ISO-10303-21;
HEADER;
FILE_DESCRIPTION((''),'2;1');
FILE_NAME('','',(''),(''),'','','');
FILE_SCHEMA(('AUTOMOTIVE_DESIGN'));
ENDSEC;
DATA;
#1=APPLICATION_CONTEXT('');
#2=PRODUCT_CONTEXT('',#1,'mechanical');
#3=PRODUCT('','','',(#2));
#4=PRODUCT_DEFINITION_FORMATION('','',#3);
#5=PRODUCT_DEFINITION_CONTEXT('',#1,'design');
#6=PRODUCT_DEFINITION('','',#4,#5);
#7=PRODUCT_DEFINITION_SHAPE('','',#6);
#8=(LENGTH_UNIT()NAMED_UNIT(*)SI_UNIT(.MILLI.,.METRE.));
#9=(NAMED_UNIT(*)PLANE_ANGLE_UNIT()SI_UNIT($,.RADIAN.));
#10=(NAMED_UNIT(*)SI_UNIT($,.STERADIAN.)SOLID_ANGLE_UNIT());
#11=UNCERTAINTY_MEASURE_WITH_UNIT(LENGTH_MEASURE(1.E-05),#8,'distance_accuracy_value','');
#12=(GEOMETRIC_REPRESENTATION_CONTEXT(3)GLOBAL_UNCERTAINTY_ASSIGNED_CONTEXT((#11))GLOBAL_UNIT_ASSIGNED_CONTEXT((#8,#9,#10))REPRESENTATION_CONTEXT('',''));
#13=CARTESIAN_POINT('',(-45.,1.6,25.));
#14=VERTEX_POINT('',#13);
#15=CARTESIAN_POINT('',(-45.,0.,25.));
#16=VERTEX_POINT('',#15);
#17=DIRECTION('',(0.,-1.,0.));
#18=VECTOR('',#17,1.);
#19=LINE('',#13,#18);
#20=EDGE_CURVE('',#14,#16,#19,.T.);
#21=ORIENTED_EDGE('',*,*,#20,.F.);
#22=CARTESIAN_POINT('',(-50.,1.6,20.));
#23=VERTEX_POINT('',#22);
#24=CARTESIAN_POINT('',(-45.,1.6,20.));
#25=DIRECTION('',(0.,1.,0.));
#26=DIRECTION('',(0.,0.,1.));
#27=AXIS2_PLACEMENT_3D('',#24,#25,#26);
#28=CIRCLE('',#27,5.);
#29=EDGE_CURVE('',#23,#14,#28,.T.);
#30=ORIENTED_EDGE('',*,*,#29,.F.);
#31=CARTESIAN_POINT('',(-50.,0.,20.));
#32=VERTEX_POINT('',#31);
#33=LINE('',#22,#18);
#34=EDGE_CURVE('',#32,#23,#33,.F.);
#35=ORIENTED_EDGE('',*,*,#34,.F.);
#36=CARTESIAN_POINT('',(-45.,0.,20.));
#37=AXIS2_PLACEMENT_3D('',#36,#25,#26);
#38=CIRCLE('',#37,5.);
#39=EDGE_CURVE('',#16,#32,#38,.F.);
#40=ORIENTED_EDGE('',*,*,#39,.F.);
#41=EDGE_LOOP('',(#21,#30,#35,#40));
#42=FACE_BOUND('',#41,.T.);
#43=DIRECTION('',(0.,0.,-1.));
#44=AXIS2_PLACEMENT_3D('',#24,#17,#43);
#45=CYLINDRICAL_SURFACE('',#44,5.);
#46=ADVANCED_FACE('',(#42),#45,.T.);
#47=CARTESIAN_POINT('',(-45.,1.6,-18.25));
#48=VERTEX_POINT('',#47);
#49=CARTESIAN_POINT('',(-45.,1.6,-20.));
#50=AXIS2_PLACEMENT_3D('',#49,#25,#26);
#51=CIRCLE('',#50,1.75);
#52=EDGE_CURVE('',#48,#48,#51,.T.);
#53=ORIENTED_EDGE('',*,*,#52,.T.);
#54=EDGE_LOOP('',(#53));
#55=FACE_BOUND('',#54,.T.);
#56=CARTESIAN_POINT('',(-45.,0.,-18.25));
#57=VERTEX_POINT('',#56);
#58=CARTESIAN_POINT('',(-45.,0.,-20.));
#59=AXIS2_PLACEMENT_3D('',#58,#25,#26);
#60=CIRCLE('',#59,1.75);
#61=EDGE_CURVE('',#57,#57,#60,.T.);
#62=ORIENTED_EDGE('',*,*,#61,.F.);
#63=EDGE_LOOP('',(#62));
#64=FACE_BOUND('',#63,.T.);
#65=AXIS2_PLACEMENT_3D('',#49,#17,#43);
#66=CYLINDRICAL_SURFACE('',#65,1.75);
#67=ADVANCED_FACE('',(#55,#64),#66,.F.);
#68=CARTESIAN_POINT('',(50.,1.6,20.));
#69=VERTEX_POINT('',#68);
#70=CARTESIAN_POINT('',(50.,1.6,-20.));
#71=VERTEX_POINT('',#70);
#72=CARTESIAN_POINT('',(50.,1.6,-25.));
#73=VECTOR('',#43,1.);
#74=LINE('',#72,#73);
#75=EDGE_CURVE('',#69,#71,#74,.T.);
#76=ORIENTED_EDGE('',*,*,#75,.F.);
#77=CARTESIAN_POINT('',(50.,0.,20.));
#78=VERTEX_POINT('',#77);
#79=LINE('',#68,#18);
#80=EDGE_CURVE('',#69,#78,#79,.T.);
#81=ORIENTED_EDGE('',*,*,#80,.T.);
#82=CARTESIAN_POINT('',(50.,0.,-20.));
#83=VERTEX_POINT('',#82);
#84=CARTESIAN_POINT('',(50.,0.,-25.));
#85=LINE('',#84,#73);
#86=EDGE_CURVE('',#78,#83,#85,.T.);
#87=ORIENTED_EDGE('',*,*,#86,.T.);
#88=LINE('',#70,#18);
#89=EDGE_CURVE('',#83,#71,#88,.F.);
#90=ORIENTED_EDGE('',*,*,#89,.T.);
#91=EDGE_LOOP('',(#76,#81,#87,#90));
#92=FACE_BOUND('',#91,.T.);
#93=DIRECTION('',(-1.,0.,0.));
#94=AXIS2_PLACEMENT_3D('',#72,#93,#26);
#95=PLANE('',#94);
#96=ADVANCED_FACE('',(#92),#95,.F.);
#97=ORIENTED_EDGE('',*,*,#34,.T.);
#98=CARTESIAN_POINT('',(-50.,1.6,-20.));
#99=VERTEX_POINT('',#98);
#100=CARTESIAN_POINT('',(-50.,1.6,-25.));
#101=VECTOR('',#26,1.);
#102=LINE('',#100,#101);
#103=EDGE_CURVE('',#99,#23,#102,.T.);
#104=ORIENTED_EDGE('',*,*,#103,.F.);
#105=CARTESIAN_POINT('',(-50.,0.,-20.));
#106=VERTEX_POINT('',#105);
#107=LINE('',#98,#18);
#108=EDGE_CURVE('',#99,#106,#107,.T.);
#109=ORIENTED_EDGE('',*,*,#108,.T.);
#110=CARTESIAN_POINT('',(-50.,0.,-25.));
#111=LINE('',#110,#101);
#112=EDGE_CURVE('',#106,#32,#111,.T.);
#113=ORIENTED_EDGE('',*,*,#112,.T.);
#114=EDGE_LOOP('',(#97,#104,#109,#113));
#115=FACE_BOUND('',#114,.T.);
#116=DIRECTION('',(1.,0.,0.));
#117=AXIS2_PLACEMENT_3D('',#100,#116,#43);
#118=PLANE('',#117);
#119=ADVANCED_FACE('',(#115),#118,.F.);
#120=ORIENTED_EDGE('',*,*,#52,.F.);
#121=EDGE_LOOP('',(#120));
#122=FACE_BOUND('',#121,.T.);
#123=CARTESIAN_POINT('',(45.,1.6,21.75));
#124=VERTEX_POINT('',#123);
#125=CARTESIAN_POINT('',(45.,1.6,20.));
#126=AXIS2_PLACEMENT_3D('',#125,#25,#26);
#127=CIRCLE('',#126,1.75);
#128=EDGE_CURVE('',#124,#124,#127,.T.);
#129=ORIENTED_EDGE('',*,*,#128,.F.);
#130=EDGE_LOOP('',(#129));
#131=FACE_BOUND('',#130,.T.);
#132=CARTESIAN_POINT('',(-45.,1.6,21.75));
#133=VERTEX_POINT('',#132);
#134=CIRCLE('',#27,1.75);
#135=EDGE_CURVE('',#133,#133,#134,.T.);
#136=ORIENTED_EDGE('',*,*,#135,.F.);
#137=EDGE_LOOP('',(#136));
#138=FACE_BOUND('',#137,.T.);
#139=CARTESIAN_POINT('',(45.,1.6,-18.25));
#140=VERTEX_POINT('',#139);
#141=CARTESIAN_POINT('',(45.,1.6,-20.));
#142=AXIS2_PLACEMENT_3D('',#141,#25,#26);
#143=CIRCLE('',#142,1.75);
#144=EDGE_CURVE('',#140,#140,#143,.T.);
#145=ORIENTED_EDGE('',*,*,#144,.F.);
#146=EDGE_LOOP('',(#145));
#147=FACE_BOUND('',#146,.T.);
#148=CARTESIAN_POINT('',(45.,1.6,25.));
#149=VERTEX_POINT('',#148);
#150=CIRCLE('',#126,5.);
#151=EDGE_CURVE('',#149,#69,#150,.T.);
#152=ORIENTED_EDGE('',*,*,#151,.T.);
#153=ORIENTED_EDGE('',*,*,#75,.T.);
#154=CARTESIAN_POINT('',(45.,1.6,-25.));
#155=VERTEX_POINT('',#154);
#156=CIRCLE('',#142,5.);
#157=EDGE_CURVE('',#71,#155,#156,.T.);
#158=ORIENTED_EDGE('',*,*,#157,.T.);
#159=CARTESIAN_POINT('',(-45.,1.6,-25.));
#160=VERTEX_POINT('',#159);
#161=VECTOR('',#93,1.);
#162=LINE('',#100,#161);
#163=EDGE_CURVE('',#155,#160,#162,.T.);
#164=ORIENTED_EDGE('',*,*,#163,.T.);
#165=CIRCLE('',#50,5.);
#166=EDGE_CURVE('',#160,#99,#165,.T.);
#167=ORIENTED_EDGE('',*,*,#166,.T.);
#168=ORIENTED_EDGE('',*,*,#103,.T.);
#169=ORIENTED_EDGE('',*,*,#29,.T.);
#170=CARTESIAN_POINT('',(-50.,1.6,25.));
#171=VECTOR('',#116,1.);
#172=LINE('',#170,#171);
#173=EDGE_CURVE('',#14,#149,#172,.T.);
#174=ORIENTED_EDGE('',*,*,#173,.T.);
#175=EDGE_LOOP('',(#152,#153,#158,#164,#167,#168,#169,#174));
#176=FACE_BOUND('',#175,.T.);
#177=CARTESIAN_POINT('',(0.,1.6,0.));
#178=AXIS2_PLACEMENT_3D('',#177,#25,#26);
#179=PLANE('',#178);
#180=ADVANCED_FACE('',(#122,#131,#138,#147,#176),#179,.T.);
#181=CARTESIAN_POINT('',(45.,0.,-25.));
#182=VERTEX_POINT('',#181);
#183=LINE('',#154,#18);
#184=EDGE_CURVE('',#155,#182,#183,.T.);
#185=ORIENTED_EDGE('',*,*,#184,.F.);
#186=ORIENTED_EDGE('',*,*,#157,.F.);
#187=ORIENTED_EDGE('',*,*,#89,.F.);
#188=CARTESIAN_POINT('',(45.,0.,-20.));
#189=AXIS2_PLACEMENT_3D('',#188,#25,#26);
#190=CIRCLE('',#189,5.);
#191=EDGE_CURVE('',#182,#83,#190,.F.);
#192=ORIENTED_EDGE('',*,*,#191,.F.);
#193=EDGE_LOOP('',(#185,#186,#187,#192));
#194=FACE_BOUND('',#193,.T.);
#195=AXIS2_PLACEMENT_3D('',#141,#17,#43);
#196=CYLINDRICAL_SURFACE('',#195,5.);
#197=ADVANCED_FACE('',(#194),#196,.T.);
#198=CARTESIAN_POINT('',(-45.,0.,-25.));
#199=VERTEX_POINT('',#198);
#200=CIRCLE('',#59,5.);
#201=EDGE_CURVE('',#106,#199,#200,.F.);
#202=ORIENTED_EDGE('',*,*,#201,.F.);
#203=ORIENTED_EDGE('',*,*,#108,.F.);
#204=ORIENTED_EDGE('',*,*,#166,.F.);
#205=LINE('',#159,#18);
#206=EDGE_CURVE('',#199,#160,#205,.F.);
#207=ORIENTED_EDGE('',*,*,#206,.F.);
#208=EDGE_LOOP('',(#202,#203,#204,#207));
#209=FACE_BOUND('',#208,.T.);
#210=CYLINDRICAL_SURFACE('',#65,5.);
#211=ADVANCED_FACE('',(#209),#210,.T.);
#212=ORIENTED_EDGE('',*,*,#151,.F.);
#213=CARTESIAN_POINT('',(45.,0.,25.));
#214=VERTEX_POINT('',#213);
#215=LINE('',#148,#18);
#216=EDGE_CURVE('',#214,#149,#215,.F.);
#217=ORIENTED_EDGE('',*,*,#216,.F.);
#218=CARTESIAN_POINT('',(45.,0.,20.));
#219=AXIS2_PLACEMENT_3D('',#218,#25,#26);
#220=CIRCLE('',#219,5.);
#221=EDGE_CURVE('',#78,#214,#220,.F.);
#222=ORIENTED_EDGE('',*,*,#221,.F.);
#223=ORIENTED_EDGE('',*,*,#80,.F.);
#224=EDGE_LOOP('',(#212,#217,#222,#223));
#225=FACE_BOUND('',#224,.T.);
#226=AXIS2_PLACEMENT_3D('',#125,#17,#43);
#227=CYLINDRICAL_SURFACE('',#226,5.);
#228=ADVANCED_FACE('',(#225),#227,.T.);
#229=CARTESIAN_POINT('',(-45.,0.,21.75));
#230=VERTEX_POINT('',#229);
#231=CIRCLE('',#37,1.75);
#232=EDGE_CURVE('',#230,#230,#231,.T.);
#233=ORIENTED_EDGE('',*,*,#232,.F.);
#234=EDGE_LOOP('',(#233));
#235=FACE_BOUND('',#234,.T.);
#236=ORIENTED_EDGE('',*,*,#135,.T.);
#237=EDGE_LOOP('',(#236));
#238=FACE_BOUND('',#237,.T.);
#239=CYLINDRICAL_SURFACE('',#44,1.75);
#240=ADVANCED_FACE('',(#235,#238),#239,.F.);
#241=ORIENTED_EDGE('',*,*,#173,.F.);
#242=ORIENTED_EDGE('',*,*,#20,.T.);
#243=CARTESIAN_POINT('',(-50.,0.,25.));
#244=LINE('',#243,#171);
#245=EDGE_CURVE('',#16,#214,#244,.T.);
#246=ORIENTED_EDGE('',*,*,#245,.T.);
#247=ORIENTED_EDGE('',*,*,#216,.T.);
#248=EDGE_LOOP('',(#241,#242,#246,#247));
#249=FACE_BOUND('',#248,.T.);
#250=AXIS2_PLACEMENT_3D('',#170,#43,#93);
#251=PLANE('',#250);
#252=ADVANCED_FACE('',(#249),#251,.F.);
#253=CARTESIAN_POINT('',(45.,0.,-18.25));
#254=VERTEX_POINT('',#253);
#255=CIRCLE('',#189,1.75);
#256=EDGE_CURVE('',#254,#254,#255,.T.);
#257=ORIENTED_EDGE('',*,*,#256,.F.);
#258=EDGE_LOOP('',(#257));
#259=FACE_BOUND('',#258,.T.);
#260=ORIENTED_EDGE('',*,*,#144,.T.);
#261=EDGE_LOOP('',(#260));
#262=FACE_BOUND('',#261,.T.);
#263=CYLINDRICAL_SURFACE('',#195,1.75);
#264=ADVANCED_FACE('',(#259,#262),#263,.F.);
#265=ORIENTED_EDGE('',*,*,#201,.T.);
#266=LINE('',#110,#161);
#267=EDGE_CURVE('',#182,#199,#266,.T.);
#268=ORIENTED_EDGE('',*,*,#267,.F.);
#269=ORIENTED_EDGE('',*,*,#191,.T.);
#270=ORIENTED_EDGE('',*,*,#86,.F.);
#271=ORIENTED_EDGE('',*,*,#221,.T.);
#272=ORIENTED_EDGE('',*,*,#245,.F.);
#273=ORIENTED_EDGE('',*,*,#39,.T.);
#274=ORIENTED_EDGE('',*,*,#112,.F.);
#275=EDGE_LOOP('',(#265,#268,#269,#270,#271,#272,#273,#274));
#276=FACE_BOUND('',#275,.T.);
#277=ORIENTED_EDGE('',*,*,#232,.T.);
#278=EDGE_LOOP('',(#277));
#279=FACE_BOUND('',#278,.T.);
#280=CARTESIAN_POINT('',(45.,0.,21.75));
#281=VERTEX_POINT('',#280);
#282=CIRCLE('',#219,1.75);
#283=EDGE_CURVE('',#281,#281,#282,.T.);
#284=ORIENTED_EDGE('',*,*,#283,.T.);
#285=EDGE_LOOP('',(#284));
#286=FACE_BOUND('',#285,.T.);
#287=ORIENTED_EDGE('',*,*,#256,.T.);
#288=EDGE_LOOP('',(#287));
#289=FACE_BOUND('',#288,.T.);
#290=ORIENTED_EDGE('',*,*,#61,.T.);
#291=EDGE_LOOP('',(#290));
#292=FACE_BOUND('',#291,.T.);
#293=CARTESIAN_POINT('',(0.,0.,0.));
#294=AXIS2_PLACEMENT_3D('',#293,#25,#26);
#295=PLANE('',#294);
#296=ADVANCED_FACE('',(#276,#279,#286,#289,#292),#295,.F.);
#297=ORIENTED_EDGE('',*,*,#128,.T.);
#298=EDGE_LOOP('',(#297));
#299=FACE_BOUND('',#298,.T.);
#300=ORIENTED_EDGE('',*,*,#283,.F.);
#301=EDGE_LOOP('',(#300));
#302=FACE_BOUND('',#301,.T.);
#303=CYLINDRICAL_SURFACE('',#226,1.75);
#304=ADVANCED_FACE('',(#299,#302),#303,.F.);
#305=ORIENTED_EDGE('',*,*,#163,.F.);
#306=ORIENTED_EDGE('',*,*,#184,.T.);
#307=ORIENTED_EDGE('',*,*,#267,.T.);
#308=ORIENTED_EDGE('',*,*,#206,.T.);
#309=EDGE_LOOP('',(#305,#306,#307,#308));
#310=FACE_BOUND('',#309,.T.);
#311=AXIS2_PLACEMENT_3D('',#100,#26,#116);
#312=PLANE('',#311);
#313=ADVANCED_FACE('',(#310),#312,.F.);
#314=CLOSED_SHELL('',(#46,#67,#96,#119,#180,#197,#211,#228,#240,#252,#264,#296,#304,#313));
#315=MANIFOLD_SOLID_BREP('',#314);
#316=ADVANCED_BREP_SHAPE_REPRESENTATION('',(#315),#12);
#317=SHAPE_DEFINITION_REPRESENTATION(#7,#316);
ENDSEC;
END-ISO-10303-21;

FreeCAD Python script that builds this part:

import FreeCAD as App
import Part
import Sketcher
from FreeCAD import Vector


def edges_at(feature, points):
    """Names of the edges that pass closest to the given points."""
    edges = feature.Shape.Edges
    near = lambda p: min(range(len(edges)), key=lambda i: edges[i].distToShape(Part.Vertex(*p))[0])
    return sorted({f"Edge{near(p) + 1}" for p in points})


def add_polygon(sketch, points):
    """Adds a closed chain of lines whose ends are joined by coincident constraints."""
    first, n = sketch.GeometryCount, len(points)
    for a, b in zip(points, points[1:] + points[:1]):
        sketch.addGeometry(Part.LineSegment(App.Vector(*a, 0), App.Vector(*b, 0)), False)
    for i in range(n):
        sketch.addConstraint(Sketcher.Constraint("Coincident", first + i, 2, first + (i + 1) % n, 1))

doc = App.newDocument("Part")
body = doc.addObject("PartDesign::Body", "Body")

# Sketch on XZ plane
sketch1 = body.newObject("Sketcher::SketchObject", "Sketch")
sketch1.AttachmentSupport = (doc.getObject("XZ_Plane"), [""])
sketch1.MapMode = "FlatFace"
add_polygon(sketch1, [(-50, -25), (-50, 25), (50, 25), (50, -25)])  # lines 0-3
sketch1.addGeometry(Part.Circle(Vector(-45, 20, 0), Vector(0, 0, 1), 1.75), False)  # 4
sketch1.addGeometry(Part.Circle(Vector(45, 20, 0), Vector(0, 0, 1), 1.75), False)  # 5
sketch1.addGeometry(Part.Circle(Vector(-45, -20, 0), Vector(0, 0, 1), 1.75), False)  # 6
sketch1.addGeometry(Part.Circle(Vector(45, -20, 0), Vector(0, 0, 1), 1.75), False)  # 7
sketch1.addConstraint([
    Sketcher.Constraint("Vertical", 0),
    Sketcher.Constraint("Horizontal", 1),
    Sketcher.Constraint("Vertical", 2),
    Sketcher.Constraint("Horizontal", 3),
    Sketcher.Constraint("Equal", 4, 5),
    Sketcher.Constraint("Equal", 5, 6),
    Sketcher.Constraint("Equal", 6, 7),
    Sketcher.Constraint("Symmetric", 5, 3, 6, 3, -1, 1),
    Sketcher.Constraint("Symmetric", 4, 3, 7, 3, -1, 1),
    Sketcher.Constraint("Symmetric", 0, 2, 2, 2, -1, 1),
    Sketcher.Constraint("Symmetric", 4, 3, 5, 3, -2),
    Sketcher.Constraint("Diameter", 4, 3.5),
    Sketcher.Constraint("DistanceX", 1, 1, 1, 2, 100.0),
    Sketcher.Constraint("DistanceY", 0, 1, 0, 2, 50.0),
    Sketcher.Constraint("DistanceX", 4, 3, -1, 1, 45.0),
    Sketcher.Constraint("DistanceY", -1, 1, 4, 3, 20.0),
])
pad1 = body.newObject("PartDesign::Pad", "Pad")
pad1.Profile = sketch1
pad1.Length = 1.6
pad1.Reversed = True
doc.recompute()

fillet = body.newObject("PartDesign::Fillet", "Fillet")
fillet.Base = (pad1, edges_at(pad1, [
    (50, 0.8, 25),
    (-50, 0.8, 25),
    (-50, 0.8, -25),
    (50, 0.8, -25),
]))
fillet.Radius = 5

doc.recompute()
